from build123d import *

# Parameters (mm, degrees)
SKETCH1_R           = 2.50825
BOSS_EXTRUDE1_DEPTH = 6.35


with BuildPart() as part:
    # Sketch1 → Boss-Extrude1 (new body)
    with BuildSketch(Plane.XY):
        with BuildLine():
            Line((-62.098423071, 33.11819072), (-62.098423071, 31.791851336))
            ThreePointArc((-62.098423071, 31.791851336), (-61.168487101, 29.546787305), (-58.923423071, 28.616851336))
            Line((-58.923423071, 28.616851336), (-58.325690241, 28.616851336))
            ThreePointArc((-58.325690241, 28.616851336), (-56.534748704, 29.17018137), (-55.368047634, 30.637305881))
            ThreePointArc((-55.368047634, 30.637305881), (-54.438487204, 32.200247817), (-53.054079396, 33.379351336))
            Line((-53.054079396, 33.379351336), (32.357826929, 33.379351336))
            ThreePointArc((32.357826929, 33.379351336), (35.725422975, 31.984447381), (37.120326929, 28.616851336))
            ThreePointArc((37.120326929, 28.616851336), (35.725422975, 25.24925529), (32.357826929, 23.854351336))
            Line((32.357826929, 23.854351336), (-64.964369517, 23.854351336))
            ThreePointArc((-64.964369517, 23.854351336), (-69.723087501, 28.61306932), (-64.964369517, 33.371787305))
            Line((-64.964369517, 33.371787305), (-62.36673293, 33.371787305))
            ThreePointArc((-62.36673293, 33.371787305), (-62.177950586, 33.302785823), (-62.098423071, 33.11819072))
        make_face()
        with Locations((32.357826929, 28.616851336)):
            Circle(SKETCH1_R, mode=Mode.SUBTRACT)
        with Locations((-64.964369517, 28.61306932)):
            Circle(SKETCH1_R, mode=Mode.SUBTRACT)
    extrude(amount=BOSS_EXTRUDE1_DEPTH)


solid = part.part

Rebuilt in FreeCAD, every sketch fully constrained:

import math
import FreeCAD as App
import Part
import Sketcher
from FreeCAD import Vector
Q = App.Units.Quantity

doc = App.newDocument("Part")
body = doc.addObject("PartDesign::Body", "Body")

sketch1 = body.newObject("Sketcher::SketchObject", "Sketch")
sketch1.AttachmentSupport = (doc.getObject("XY_Plane"), [""])
sketch1.MapMode = "FlatFace"
sketch1.addGeometry(Part.LineSegment(Vector(-62.098423, 31.791851, 0), Vector(-62.098423, 33.118191, 0)), False)
sketch1.addGeometry(Part.ArcOfCircle(Part.Circle(Vector(-62.352423, 33.118191, 0), Vector(0, 0, 1), 0.254), math.radians(0), math.radians(93.229641)), False)
sketch1.addGeometry(Part.LineSegment(Vector(-62.366733, 33.371787, 0), Vector(-64.96437, 33.371787, 0)), False)
sketch1.addGeometry(Part.ArcOfCircle(Part.Circle(Vector(-64.96437, 28.613069, 0), Vector(0, 0, 1), 4.758718), math.radians(90), math.radians(270)), False)
sketch1.addGeometry(Part.LineSegment(Vector(-64.96437, 23.854351, 0), Vector(32.357827, 23.854351, 0)), False)
sketch1.addGeometry(Part.ArcOfCircle(Part.Circle(Vector(32.357827, 28.616851, 0), Vector(0, 0, 1), 4.7625), math.radians(-90), math.radians(0)), False)
sketch1.addGeometry(Part.ArcOfCircle(Part.Circle(Vector(32.357827, 28.616851, 0), Vector(0, 0, 1), 4.7625), math.radians(0), math.radians(90)), False)
sketch1.addGeometry(Part.LineSegment(Vector(32.357827, 33.379351, 0), Vector(-53.054079, 33.379351, 0)), False)
sketch1.addGeometry(Part.ArcOfCircle(Part.Circle(Vector(-50.192173, 28.616851, 0), Vector(0, 0, 1), 5.55625), math.radians(121.002719), math.radians(158.676314)), False)
sketch1.addGeometry(Part.ArcOfCircle(Part.Circle(Vector(-58.32569, 31.791851, 0), Vector(0, 0, 1), 3.175), math.radians(-90), math.radians(-21.323686)), False)
sketch1.addGeometry(Part.LineSegment(Vector(-58.32569, 28.616851, 0), Vector(-58.923423, 28.616851, 0)), False)
sketch1.addGeometry(Part.ArcOfCircle(Part.Circle(Vector(-58.923423, 31.791851, 0), Vector(0, 0, 1), 3.175), math.radians(180), math.radians(270)), False)
sketch1.addGeometry(Part.Circle(Vector(-64.96437, 28.613069, 0), Vector(0, 0, 1), 2.50825), False)
sketch1.addGeometry(Part.Circle(Vector(32.357827, 28.616851, 0), Vector(0, 0, 1), 2.50825), False)
sketch1.addConstraint(Sketcher.Constraint("Tangent", 0, 2, 1, 1))
sketch1.addConstraint(Sketcher.Constraint("Coincident", 1, 2, 2, 1))
sketch1.addConstraint(Sketcher.Constraint("Tangent", 2, 2, 3, 1))
sketch1.addConstraint(Sketcher.Constraint("Tangent", 3, 2, 4, 1))
sketch1.addConstraint(Sketcher.Constraint("Tangent", 4, 2, 5, 1))
sketch1.addConstraint(Sketcher.Constraint("Tangent", 5, 2, 6, 1))
sketch1.addConstraint(Sketcher.Constraint("Tangent", 6, 2, 7, 1))
sketch1.addConstraint(Sketcher.Constraint("Coincident", 7, 2, 8, 1))
sketch1.addConstraint(Sketcher.Constraint("Tangent", 8, 2, 9, 2))
sketch1.addConstraint(Sketcher.Constraint("Tangent", 9, 1, 10, 1))
sketch1.addConstraint(Sketcher.Constraint("Tangent", 10, 2, 11, 2))
sketch1.addConstraint(Sketcher.Constraint("Tangent", 11, 1, 0, 1))
sketch1.addConstraint(Sketcher.Constraint("Vertical", 0))
sketch1.addConstraint(Sketcher.Constraint("Horizontal", 2))
sketch1.addConstraint(Sketcher.Constraint("Horizontal", 4))
sketch1.addConstraint(Sketcher.Constraint("Horizontal", 7))
sketch1.addConstraint(Sketcher.Constraint("Horizontal", 10))
sketch1.addConstraint(Sketcher.Constraint("Coincident", 12, 3, 3, 3))
sketch1.addConstraint(Sketcher.Constraint("Coincident", 13, 3, 5, 3))
sketch1.addConstraint(Sketcher.Constraint("Equal", 5, 6))
sketch1.addConstraint(Sketcher.Constraint("Equal", 9, 11))
sketch1.addConstraint(Sketcher.Constraint("Equal", 12, 13))
sketch1.addConstraint(Sketcher.Constraint("Horizontal", 6, 3, 8, 3))
sketch1.addConstraint(Sketcher.Constraint("Horizontal", 13, 3, 5, 2))
sketch1.addConstraint(Sketcher.Constraint("Horizontal", 5, 2, 9, 1))
sketch1.addConstraint(Sketcher.Constraint("Radius", 1, Q("0.01 in")))
sketch1.addConstraint(Sketcher.Constraint("Radius", 5, Q("0.1875 in")))
sketch1.addConstraint(Sketcher.Constraint("Radius", 8, Q("0.21875 in")))
sketch1.addConstraint(Sketcher.Constraint("Radius", 9, Q("0.125 in")))
sketch1.addConstraint(Sketcher.Constraint("Diameter", 12, Q("0.1975 in")))
sketch1.addConstraint(Sketcher.Constraint("DistanceX", 8, 3, 6, 3, Q("3.25 in")))
sketch1.addConstraint(Sketcher.Constraint("DistanceX", 11, 3, 8, 3, Q("0.34375 in")))
sketch1.addConstraint(Sketcher.Constraint("Radius", 3, Q("4.758718 mm")))
sketch1.addConstraint(Sketcher.Constraint("DistanceY", 0, 1, 0, 2, Q("1.326339 mm")))
sketch1.addConstraint(Sketcher.Constraint("DistanceX", 2, 2, 2, 1, Q("2.597637 mm")))
sketch1.addConstraint(Sketcher.Constraint("DistanceY", -1, 1, 1, 3, Q("33.118191 mm")))
sketch1.addConstraint(Sketcher.Constraint("DistanceX", 3, 3, -1, 1, Q("64.96437 mm")))
pad1 = body.newObject("PartDesign::Pad", "Pad")
pad1.Profile = sketch1
pad1.Length = Q("0.25 in")

doc.recompute()
